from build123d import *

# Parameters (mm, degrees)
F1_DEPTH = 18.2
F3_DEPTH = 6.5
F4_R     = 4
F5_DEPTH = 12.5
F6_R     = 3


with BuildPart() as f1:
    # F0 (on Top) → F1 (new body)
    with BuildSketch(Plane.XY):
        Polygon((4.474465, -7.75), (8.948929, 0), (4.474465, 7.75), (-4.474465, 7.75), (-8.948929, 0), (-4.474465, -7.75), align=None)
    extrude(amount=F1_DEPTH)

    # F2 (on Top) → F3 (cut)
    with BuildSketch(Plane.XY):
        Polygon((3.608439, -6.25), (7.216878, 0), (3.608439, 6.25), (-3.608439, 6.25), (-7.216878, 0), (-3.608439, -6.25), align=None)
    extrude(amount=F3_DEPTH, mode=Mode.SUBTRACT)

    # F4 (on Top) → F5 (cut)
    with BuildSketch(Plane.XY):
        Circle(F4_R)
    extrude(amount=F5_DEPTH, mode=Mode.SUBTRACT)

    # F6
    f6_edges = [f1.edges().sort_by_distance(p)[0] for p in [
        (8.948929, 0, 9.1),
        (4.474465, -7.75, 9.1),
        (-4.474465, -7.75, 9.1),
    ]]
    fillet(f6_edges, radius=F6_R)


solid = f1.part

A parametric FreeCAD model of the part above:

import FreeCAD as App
import Part
import Sketcher

V = App.Vector
Q = App.Units.Quantity


def edges_at(feature, points):
    """Names of the edges that pass closest to the given points."""
    edges = feature.Shape.Edges
    near = lambda p: min(range(len(edges)), key=lambda i: edges[i].distToShape(Part.Vertex(*p))[0])
    return sorted({f"Edge{near(p) + 1}" for p in points})

doc = App.newDocument("Part")
body = doc.addObject("PartDesign::Body", "Body")

# Sketch on XY plane
sketch1 = doc.addObject("Sketcher::SketchObject", "Sketch")
body.addObject(sketch1)
sketch1.AttachmentSupport = (doc.XY_Plane, [""])
sketch1.MapMode = "FlatFace"
sketch1.addGeometry([
    Part.LineSegment(V(4, -8, 0), V(9, 0, 0)),  # 0
    Part.LineSegment(V(9, 0, 0), V(4, 8, 0)),  # 1
    Part.LineSegment(V(4, 8, 0), V(-4, 8, 0)),  # 2
    Part.LineSegment(V(-4, 8, 0), V(-9, 0, 0)),  # 3
    Part.LineSegment(V(-9, 0, 0), V(-4, -8, 0)),  # 4
    Part.LineSegment(V(-4, -8, 0), V(4, -8, 0)),  # 5
], False)
sketch1.addConstraint([
    Sketcher.Constraint("Coincident", 0, 2, 1, 1),
    Sketcher.Constraint("Coincident", 1, 2, 2, 1),
    Sketcher.Constraint("Coincident", 2, 2, 3, 1),
    Sketcher.Constraint("Coincident", 3, 2, 4, 1),
    Sketcher.Constraint("Coincident", 4, 2, 5, 1),
    Sketcher.Constraint("Coincident", 5, 2, 0, 1),
    Sketcher.Constraint("Horizontal", 2),
    Sketcher.Constraint("Horizontal", 5),
    Sketcher.Constraint("Symmetric", 0, 2, 3, 2, -1, 1),
    Sketcher.Constraint("Symmetric", 1, 2, 4, 2, -1, 1),
    Sketcher.Constraint("PointOnObject", 0, 2, -1),
    Sketcher.Constraint("Parallel", 0, 3),
    Sketcher.Constraint("Vertical", 2, 2, 4, 2),
    Sketcher.Constraint("Angle", 0, Q("60.000003 deg")),
    Sketcher.Constraint("DistanceY", 4, 2, 2, 2, Q("15.5 mm")),
    Sketcher.Constraint("DistanceX", 2, 2, 2, 1, Q("8.94893 mm")),
])
pad1 = doc.addObject("PartDesign::Pad", "Pad")
body.addObject(pad1)
pad1.Profile = sketch1
pad1.Length = 18.2

# Sketch on XY plane
sketch2 = doc.addObject("Sketcher::SketchObject", "Sketch001")
body.addObject(sketch2)
sketch2.AttachmentSupport = (doc.XY_Plane, [""])
sketch2.MapMode = "FlatFace"
sketch2.addGeometry([
    Part.LineSegment(V(4, -6, 0), V(7, 0, 0)),  # 0
    Part.LineSegment(V(7, 0, 0), V(4, 6, 0)),  # 1
    Part.LineSegment(V(4, 6, 0), V(-4, 6, 0)),  # 2
    Part.LineSegment(V(-4, 6, 0), V(-7, 0, 0)),  # 3
    Part.LineSegment(V(-7, 0, 0), V(-4, -6, 0)),  # 4
    Part.LineSegment(V(-4, -6, 0), V(4, -6, 0)),  # 5
], False)
sketch2.addConstraint([
    Sketcher.Constraint("Coincident", 0, 2, 1, 1),
    Sketcher.Constraint("Coincident", 1, 2, 2, 1),
    Sketcher.Constraint("Coincident", 2, 2, 3, 1),
    Sketcher.Constraint("Coincident", 3, 2, 4, 1),
    Sketcher.Constraint("Coincident", 4, 2, 5, 1),
    Sketcher.Constraint("Coincident", 5, 2, 0, 1),
    Sketcher.Constraint("Horizontal", 2),
    Sketcher.Constraint("Horizontal", 5),
    Sketcher.Constraint("Symmetric", 0, 2, 3, 2, -1, 1),
    Sketcher.Constraint("Symmetric", 1, 2, 4, 2, -1, 1),
    Sketcher.Constraint("PointOnObject", 0, 2, -1),
    Sketcher.Constraint("Parallel", 0, 3),
    Sketcher.Constraint("Vertical", 2, 2, 4, 2),
    Sketcher.Constraint("Angle", 0, Q("60.000001 deg")),
    Sketcher.Constraint("DistanceY", 4, 2, 2, 2, Q("12.5 mm")),
    Sketcher.Constraint("DistanceX", 2, 2, 2, 1, Q("7.216878 mm")),
])
pocket1 = doc.addObject("PartDesign::Pocket", "Pocket")
body.addObject(pocket1)
pocket1.Profile = sketch2
pocket1.Length = 6.5
pocket1.Reversed = True

# Sketch on XY plane
sketch3 = doc.addObject("Sketcher::SketchObject", "Sketch002")
body.addObject(sketch3)
sketch3.AttachmentSupport = (doc.XY_Plane, [""])
sketch3.MapMode = "FlatFace"
sketch3.addGeometry(Part.Circle(V(0, 0, 0), V(0, 0, 1), 4), False)
sketch3.addConstraint([
    Sketcher.Constraint("Coincident", 0, 3, -1, 1),
    Sketcher.Constraint("Diameter", 0, Q("8 mm")),
])
pocket2 = doc.addObject("PartDesign::Pocket", "Pocket001")
body.addObject(pocket2)
pocket2.Profile = sketch3
pocket2.Length = 12.5
pocket2.Reversed = True
doc.recompute()

fillet = doc.addObject("PartDesign::Fillet", "Fillet")
body.addObject(fillet)
fillet.Base = (pocket2, edges_at(pocket2, [(8.949, 0, 9.1), (4.474, -7.75, 9.1), (-4.474, -7.75, 9.1)]))
fillet.Radius = 3

doc.recompute()
